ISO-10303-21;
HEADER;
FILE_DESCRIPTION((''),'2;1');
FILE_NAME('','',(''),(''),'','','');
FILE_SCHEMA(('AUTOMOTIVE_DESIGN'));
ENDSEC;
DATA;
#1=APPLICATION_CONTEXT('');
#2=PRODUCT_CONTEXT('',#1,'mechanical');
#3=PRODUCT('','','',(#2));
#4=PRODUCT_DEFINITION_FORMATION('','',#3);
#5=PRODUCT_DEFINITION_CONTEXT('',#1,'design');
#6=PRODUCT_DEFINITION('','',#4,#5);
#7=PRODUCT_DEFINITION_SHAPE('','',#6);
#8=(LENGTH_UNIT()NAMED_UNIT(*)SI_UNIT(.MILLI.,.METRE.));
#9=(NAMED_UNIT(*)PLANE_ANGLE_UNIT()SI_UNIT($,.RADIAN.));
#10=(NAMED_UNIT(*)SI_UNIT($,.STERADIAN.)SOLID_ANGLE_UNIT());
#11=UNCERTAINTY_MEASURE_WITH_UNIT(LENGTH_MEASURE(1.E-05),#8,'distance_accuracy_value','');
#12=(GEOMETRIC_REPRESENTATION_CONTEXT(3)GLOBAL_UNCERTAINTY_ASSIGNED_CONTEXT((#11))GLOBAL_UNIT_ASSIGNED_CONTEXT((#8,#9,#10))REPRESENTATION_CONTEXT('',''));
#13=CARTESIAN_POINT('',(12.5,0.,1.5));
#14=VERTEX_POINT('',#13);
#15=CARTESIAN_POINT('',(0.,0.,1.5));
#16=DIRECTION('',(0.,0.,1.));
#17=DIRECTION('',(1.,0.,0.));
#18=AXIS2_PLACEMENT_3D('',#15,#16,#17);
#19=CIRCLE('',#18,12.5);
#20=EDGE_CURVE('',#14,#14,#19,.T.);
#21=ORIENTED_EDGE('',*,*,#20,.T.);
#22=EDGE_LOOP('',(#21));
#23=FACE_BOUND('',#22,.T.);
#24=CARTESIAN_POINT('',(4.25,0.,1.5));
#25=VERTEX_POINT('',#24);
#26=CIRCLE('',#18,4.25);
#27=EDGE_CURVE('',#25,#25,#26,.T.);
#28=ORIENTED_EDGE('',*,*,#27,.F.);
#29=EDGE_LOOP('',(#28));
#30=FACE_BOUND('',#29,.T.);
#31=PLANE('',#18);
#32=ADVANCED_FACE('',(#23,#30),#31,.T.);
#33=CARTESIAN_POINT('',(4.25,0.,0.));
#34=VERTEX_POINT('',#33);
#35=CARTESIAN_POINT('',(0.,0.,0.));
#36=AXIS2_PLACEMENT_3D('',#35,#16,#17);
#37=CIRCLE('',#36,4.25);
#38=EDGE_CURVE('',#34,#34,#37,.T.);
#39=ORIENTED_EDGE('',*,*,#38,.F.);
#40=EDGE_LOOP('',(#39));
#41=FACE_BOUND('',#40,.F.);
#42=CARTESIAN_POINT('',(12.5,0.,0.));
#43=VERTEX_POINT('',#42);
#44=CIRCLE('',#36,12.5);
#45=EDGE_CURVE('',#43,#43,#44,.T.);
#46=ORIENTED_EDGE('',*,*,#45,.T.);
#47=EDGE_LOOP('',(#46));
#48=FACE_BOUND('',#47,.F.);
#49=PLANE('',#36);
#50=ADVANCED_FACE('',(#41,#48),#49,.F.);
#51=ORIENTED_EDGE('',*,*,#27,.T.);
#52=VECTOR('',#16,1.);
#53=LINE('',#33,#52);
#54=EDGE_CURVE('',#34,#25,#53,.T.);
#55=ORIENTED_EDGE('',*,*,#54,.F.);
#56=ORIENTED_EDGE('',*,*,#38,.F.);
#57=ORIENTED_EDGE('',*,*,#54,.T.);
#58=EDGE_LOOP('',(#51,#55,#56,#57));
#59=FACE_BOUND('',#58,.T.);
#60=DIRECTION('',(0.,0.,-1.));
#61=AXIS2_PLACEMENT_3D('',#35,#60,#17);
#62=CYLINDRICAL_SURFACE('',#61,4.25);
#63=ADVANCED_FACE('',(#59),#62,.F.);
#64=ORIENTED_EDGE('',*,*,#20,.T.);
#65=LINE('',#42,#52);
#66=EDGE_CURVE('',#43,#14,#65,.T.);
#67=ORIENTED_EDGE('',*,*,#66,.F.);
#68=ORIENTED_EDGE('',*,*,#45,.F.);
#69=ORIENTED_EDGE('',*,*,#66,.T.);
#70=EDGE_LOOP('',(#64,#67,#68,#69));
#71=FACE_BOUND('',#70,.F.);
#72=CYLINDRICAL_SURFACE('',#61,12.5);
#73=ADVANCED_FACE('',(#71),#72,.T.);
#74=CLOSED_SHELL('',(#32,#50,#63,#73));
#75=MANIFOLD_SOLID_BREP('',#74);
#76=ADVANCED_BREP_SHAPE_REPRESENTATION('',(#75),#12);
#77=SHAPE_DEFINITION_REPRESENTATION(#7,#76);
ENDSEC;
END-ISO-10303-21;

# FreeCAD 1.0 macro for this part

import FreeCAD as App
import Part
import Sketcher

doc = App.newDocument("Part")
body = doc.addObject("PartDesign::Body", "Body")

# Sketch on XY plane
sketch1 = doc.addObject("Sketcher::SketchObject", "Sketch")
body.addObject(sketch1)
sketch1.AttachmentSupport = (doc.XY_Plane, [""])
sketch1.MapMode = "FlatFace"
sketch1.addGeometry([
    Part.Circle(App.Vector(0, 0, 0), App.Vector(0, 0, 1), 12.5),
    Part.Circle(App.Vector(0, 0, 0), App.Vector(0, 0, 1), 4.25),
], False)
sketch1.addConstraint([
    Sketcher.Constraint("Coincident", 0, 3, -1, 1),
    Sketcher.Constraint("Coincident", 1, 3, -1, 1),
    Sketcher.Constraint("Diameter", 0, 25.0),
    Sketcher.Constraint("Diameter", 1, 8.5),
])
pad1 = doc.addObject("PartDesign::Pad", "Pad")
body.addObject(pad1)
pad1.Profile = sketch1
pad1.Length = 1.5

doc.recompute()
